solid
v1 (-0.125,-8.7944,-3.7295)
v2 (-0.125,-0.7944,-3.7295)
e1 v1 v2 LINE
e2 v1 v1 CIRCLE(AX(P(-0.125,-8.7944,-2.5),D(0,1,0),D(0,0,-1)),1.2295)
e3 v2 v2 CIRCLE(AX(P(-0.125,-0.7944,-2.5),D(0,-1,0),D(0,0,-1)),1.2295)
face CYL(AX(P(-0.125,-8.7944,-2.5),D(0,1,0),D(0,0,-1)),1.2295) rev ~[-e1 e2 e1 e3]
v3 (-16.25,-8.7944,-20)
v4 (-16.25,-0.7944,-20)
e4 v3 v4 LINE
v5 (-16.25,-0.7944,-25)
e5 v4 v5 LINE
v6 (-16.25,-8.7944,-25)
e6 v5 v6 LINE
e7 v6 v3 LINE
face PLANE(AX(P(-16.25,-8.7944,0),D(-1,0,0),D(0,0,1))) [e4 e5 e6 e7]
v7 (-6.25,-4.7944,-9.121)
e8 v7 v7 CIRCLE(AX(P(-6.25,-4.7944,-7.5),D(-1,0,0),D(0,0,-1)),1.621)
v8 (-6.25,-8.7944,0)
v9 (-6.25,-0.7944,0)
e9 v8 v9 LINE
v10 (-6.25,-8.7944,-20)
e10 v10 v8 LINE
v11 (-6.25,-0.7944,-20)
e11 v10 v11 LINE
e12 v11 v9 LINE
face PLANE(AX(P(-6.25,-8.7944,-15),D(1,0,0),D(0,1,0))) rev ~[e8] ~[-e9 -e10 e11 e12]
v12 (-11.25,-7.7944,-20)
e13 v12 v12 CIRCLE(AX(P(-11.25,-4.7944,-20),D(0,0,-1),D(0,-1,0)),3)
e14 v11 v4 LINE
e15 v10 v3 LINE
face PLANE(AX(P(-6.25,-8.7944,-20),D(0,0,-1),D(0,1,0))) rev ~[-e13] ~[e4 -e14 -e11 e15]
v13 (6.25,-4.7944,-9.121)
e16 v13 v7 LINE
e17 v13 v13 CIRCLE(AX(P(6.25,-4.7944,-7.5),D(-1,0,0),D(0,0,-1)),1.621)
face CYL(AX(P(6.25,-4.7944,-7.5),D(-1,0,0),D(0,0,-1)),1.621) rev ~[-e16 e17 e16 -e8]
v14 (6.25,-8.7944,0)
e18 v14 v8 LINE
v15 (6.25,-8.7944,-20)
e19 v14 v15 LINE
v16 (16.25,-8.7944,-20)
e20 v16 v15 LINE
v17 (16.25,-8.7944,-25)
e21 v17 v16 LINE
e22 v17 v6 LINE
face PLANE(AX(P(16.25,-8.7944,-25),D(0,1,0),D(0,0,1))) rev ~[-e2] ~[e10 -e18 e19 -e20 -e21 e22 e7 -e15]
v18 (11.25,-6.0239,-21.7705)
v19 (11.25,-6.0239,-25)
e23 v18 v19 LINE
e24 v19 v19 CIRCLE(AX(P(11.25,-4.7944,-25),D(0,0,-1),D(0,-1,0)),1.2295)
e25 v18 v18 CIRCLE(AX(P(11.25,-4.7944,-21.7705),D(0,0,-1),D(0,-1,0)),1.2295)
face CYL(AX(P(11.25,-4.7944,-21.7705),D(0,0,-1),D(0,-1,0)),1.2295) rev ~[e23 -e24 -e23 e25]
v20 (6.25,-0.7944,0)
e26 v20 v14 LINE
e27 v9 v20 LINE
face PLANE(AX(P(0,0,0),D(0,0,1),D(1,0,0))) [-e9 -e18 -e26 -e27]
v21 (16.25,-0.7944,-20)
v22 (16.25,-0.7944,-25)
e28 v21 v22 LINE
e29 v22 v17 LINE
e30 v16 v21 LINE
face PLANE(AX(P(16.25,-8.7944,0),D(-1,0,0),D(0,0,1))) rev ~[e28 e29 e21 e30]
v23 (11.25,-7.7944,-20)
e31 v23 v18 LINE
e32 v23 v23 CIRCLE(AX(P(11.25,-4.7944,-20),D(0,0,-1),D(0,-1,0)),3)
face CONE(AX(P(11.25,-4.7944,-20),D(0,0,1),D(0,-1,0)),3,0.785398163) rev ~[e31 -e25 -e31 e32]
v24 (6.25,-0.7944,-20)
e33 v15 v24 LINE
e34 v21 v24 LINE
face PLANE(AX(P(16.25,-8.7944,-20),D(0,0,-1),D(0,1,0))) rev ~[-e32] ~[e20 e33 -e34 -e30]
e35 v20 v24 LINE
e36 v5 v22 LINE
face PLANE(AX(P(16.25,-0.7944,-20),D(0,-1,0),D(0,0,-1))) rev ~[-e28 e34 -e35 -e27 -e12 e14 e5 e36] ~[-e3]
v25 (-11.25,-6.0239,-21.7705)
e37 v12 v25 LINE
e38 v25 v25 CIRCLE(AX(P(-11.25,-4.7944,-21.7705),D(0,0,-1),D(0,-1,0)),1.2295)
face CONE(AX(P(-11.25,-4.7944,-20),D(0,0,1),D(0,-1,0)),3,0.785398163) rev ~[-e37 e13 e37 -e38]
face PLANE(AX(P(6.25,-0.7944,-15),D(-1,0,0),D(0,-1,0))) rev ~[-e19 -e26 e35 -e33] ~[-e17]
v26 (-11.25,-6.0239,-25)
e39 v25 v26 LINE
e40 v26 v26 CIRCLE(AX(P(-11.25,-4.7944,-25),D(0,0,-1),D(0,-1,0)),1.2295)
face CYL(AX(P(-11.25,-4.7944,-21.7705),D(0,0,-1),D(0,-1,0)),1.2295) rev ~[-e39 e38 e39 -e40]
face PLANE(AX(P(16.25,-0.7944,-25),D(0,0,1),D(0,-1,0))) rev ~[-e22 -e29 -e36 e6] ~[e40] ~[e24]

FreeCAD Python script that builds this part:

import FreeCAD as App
import Part
import Sketcher
from FreeCAD import Vector

doc = App.newDocument("Part")
body = doc.addObject("PartDesign::Body", "Body")

# Sketch on XY plane
sketch1 = body.newObject("Sketcher::SketchObject", "Sketch")
sketch1.AttachmentSupport = (doc.getObject("XY_Plane"), [""])
sketch1.MapMode = "FlatFace"
sketch1.addGeometry(Part.LineSegment(Vector(6, -1, 0), Vector(-6, -1, 0)), False)
sketch1.addGeometry(Part.LineSegment(Vector(-6, -1, 0), Vector(-6, -9, 0)), False)
sketch1.addGeometry(Part.LineSegment(Vector(-6, -9, 0), Vector(6, -9, 0)), False)
sketch1.addGeometry(Part.LineSegment(Vector(6, -9, 0), Vector(6, -1, 0)), False)
sketch1.addConstraint(Sketcher.Constraint("Coincident", 0, 2, 1, 1))
sketch1.addConstraint(Sketcher.Constraint("Coincident", 1, 2, 2, 1))
sketch1.addConstraint(Sketcher.Constraint("Coincident", 2, 2, 3, 1))
sketch1.addConstraint(Sketcher.Constraint("Coincident", 3, 2, 0, 1))
sketch1.addConstraint(Sketcher.Constraint("Horizontal", 0))
sketch1.addConstraint(Sketcher.Constraint("Vertical", 1))
sketch1.addConstraint(Sketcher.Constraint("Horizontal", 2))
sketch1.addConstraint(Sketcher.Constraint("Vertical", 3))
sketch1.addConstraint(Sketcher.Constraint("DistanceY", 1, 2, 1, 1, 8.0))
sketch1.addConstraint(Sketcher.Constraint("DistanceX", 0, 2, 0, 1, 12.5))
sketch1.addConstraint(Sketcher.Constraint("DistanceX", 0, 2, -1, 1, 6.25))
sketch1.addConstraint(Sketcher.Constraint("DistanceY", 0, 2, -1, 1, 0.7944))
pad1 = body.newObject("PartDesign::Pad", "Pad")
pad1.Profile = sketch1
pad1.Length = 15
pad1.Reversed = True

# Sketch on XZ plane
sketch2 = body.newObject("Sketcher::SketchObject", "Sketch001")
sketch2.AttachmentSupport = (doc.getObject("XZ_Plane"), [""])
sketch2.MapMode = "FlatFace"
sketch2.AttachmentOffset = App.Placement(Vector(0, 0, 8.7944), App.Rotation())
sketch2.addGeometry(Part.Circle(Vector(-0.1, -2.5, 0), Vector(0, 0, 1), 1.2), False)
sketch2.addConstraint(Sketcher.Constraint("Diameter", 0, 2.459))
sketch2.addConstraint(Sketcher.Constraint("DistanceY", 0, 3, -1, 1, 2.5))
sketch2.addConstraint(Sketcher.Constraint("DistanceX", 0, 3, -1, 1, 0.125))
doc.recompute()
hole = body.newObject("PartDesign::Hole", "Hole")
hole.Profile = sketch2
hole.ThreadType = "None"
hole.Diameter = 2.459
hole.DepthType = "ThroughAll"

# Sketch on YZ plane
sketch3 = body.newObject("Sketcher::SketchObject", "Sketch002")
sketch3.AttachmentSupport = (doc.getObject("YZ_Plane"), [""])
sketch3.MapMode = "FlatFace"
sketch3.AttachmentOffset = App.Placement(Vector(0, 0, 6.25), App.Rotation())
sketch3.addGeometry(Part.Circle(Vector(-4.8, -7.5, 0), Vector(0, 0, 1), 1.6), False)
sketch3.addConstraint(Sketcher.Constraint("Diameter", 0, 3.242))
sketch3.addConstraint(Sketcher.Constraint("DistanceY", 0, 3, -1, 1, 7.5))
sketch3.addConstraint(Sketcher.Constraint("DistanceX", 0, 3, -1, 1, 4.7944))
doc.recompute()
hole2 = body.newObject("PartDesign::Hole", "Hole001")
hole2.Profile = sketch3
hole2.ThreadType = "None"
hole2.Diameter = 3.242
hole2.DepthType = "ThroughAll"

# Sketch on XY plane
sketch4 = body.newObject("Sketcher::SketchObject", "Sketch003")
sketch4.AttachmentSupport = (doc.getObject("XY_Plane"), [""])
sketch4.MapMode = "FlatFace"
sketch4.AttachmentOffset = App.Placement(Vector(0, 0, -15), App.Rotation())
sketch4.addGeometry(Part.LineSegment(Vector(-6, -1, 0), Vector(6, -1, 0)), False)
sketch4.addGeometry(Part.LineSegment(Vector(6, -1, 0), Vector(6, -9, 0)), False)
sketch4.addGeometry(Part.LineSegment(Vector(6, -9, 0), Vector(-6, -9, 0)), False)
sketch4.addGeometry(Part.LineSegment(Vector(-6, -9, 0), Vector(-6, -1, 0)), False)
sketch4.addConstraint(Sketcher.Constraint("Coincident", 0, 2, 1, 1))
sketch4.addConstraint(Sketcher.Constraint("Coincident", 1, 2, 2, 1))
sketch4.addConstraint(Sketcher.Constraint("Coincident", 2, 2, 3, 1))
sketch4.addConstraint(Sketcher.Constraint("Coincident", 3, 2, 0, 1))
sketch4.addConstraint(Sketcher.Constraint("Horizontal", 0))
sketch4.addConstraint(Sketcher.Constraint("Vertical", 1))
sketch4.addConstraint(Sketcher.Constraint("Horizontal", 2))
sketch4.addConstraint(Sketcher.Constraint("Vertical", 3))
sketch4.addConstraint(Sketcher.Constraint("DistanceY", 1, 2, 1, 1, 8.0))
sketch4.addConstraint(Sketcher.Constraint("DistanceX", 0, 1, 0, 2, 12.5))
sketch4.addConstraint(Sketcher.Constraint("DistanceX", -1, 1, 0, 2, 6.25))
sketch4.addConstraint(Sketcher.Constraint("DistanceY", 0, 2, -1, 1, 0.7944))
pad2 = body.newObject("PartDesign::Pad", "Pad001")
pad2.Profile = sketch4
pad2.Length = 10
pad2.Reversed = True

# Sketch on YZ plane
sketch5 = body.newObject("Sketcher::SketchObject", "Sketch004")
sketch5.AttachmentSupport = (doc.getObject("YZ_Plane"), [""])
sketch5.MapMode = "FlatFace"
sketch5.AttachmentOffset = App.Placement(Vector(0, 0, -6.25), App.Rotation())
sketch5.addGeometry(Part.LineSegment(Vector(-1, -25, 0), Vector(-9, -25, 0)), False)
sketch5.addGeometry(Part.LineSegment(Vector(-9, -25, 0), Vector(-9, -20, 0)), False)
sketch5.addGeometry(Part.LineSegment(Vector(-9, -20, 0), Vector(-1, -20, 0)), False)
sketch5.addGeometry(Part.LineSegment(Vector(-1, -20, 0), Vector(-1, -25, 0)), False)
sketch5.addConstraint(Sketcher.Constraint("Coincident", 0, 2, 1, 1))
sketch5.addConstraint(Sketcher.Constraint("Coincident", 1, 2, 2, 1))
sketch5.addConstraint(Sketcher.Constraint("Coincident", 2, 2, 3, 1))
sketch5.addConstraint(Sketcher.Constraint("Coincident", 3, 2, 0, 1))
sketch5.addConstraint(Sketcher.Constraint("Horizontal", 0))
sketch5.addConstraint(Sketcher.Constraint("Vertical", 1))
sketch5.addConstraint(Sketcher.Constraint("Horizontal", 2))
sketch5.addConstraint(Sketcher.Constraint("Vertical", 3))
sketch5.addConstraint(Sketcher.Constraint("DistanceX", 0, 2, 0, 1, 8.0))
sketch5.addConstraint(Sketcher.Constraint("DistanceY", 1, 1, 1, 2, 5.0))
sketch5.addConstraint(Sketcher.Constraint("DistanceY", 0, 2, -1, 1, 25.0))
sketch5.addConstraint(Sketcher.Constraint("DistanceX", 0, 2, -1, 1, 8.7944))
pad3 = body.newObject("PartDesign::Pad", "Pad002")
pad3.Profile = sketch5
pad3.Length = 10
pad3.Reversed = True

# Sketch on XY plane
sketch6 = body.newObject("Sketcher::SketchObject", "Sketch005")
sketch6.AttachmentSupport = (doc.getObject("XY_Plane"), [""])
sketch6.MapMode = "FlatFace"
sketch6.AttachmentOffset = App.Placement(Vector(0, 0, -20), App.Rotation())
sketch6.addGeometry(Part.Circle(Vector(-11.2, -4.8, 0), Vector(0, 0, 1), 1.2), False)
sketch6.addConstraint(Sketcher.Constraint("Diameter", 0, 2.459))
sketch6.addConstraint(Sketcher.Constraint("DistanceX", 0, 3, -1, 1, 11.25))
sketch6.addConstraint(Sketcher.Constraint("DistanceY", 0, 3, -1, 1, 4.7944))
doc.recompute()
hole3 = body.newObject("PartDesign::Hole", "Hole002")
hole3.Profile = sketch6
hole3.ThreadType = "None"
hole3.Diameter = 2.459
hole3.DepthType = "ThroughAll"
hole3.HoleCutType = "Countersink"
hole3.HoleCutDiameter = 6
hole3.HoleCutCountersinkAngle = 90
doc.recompute()

linearpattern = body.newObject("PartDesign::LinearPattern", "LinearPattern")
linearpattern.Originals = [pad3, hole3]
linearpattern.Direction = (doc.getObject("X_Axis"), [""])
linearpattern.Mode = "offset"
linearpattern.Offset = 22.5
linearpattern.Occurrences = 2
body.Tip = linearpattern

doc.recompute()
